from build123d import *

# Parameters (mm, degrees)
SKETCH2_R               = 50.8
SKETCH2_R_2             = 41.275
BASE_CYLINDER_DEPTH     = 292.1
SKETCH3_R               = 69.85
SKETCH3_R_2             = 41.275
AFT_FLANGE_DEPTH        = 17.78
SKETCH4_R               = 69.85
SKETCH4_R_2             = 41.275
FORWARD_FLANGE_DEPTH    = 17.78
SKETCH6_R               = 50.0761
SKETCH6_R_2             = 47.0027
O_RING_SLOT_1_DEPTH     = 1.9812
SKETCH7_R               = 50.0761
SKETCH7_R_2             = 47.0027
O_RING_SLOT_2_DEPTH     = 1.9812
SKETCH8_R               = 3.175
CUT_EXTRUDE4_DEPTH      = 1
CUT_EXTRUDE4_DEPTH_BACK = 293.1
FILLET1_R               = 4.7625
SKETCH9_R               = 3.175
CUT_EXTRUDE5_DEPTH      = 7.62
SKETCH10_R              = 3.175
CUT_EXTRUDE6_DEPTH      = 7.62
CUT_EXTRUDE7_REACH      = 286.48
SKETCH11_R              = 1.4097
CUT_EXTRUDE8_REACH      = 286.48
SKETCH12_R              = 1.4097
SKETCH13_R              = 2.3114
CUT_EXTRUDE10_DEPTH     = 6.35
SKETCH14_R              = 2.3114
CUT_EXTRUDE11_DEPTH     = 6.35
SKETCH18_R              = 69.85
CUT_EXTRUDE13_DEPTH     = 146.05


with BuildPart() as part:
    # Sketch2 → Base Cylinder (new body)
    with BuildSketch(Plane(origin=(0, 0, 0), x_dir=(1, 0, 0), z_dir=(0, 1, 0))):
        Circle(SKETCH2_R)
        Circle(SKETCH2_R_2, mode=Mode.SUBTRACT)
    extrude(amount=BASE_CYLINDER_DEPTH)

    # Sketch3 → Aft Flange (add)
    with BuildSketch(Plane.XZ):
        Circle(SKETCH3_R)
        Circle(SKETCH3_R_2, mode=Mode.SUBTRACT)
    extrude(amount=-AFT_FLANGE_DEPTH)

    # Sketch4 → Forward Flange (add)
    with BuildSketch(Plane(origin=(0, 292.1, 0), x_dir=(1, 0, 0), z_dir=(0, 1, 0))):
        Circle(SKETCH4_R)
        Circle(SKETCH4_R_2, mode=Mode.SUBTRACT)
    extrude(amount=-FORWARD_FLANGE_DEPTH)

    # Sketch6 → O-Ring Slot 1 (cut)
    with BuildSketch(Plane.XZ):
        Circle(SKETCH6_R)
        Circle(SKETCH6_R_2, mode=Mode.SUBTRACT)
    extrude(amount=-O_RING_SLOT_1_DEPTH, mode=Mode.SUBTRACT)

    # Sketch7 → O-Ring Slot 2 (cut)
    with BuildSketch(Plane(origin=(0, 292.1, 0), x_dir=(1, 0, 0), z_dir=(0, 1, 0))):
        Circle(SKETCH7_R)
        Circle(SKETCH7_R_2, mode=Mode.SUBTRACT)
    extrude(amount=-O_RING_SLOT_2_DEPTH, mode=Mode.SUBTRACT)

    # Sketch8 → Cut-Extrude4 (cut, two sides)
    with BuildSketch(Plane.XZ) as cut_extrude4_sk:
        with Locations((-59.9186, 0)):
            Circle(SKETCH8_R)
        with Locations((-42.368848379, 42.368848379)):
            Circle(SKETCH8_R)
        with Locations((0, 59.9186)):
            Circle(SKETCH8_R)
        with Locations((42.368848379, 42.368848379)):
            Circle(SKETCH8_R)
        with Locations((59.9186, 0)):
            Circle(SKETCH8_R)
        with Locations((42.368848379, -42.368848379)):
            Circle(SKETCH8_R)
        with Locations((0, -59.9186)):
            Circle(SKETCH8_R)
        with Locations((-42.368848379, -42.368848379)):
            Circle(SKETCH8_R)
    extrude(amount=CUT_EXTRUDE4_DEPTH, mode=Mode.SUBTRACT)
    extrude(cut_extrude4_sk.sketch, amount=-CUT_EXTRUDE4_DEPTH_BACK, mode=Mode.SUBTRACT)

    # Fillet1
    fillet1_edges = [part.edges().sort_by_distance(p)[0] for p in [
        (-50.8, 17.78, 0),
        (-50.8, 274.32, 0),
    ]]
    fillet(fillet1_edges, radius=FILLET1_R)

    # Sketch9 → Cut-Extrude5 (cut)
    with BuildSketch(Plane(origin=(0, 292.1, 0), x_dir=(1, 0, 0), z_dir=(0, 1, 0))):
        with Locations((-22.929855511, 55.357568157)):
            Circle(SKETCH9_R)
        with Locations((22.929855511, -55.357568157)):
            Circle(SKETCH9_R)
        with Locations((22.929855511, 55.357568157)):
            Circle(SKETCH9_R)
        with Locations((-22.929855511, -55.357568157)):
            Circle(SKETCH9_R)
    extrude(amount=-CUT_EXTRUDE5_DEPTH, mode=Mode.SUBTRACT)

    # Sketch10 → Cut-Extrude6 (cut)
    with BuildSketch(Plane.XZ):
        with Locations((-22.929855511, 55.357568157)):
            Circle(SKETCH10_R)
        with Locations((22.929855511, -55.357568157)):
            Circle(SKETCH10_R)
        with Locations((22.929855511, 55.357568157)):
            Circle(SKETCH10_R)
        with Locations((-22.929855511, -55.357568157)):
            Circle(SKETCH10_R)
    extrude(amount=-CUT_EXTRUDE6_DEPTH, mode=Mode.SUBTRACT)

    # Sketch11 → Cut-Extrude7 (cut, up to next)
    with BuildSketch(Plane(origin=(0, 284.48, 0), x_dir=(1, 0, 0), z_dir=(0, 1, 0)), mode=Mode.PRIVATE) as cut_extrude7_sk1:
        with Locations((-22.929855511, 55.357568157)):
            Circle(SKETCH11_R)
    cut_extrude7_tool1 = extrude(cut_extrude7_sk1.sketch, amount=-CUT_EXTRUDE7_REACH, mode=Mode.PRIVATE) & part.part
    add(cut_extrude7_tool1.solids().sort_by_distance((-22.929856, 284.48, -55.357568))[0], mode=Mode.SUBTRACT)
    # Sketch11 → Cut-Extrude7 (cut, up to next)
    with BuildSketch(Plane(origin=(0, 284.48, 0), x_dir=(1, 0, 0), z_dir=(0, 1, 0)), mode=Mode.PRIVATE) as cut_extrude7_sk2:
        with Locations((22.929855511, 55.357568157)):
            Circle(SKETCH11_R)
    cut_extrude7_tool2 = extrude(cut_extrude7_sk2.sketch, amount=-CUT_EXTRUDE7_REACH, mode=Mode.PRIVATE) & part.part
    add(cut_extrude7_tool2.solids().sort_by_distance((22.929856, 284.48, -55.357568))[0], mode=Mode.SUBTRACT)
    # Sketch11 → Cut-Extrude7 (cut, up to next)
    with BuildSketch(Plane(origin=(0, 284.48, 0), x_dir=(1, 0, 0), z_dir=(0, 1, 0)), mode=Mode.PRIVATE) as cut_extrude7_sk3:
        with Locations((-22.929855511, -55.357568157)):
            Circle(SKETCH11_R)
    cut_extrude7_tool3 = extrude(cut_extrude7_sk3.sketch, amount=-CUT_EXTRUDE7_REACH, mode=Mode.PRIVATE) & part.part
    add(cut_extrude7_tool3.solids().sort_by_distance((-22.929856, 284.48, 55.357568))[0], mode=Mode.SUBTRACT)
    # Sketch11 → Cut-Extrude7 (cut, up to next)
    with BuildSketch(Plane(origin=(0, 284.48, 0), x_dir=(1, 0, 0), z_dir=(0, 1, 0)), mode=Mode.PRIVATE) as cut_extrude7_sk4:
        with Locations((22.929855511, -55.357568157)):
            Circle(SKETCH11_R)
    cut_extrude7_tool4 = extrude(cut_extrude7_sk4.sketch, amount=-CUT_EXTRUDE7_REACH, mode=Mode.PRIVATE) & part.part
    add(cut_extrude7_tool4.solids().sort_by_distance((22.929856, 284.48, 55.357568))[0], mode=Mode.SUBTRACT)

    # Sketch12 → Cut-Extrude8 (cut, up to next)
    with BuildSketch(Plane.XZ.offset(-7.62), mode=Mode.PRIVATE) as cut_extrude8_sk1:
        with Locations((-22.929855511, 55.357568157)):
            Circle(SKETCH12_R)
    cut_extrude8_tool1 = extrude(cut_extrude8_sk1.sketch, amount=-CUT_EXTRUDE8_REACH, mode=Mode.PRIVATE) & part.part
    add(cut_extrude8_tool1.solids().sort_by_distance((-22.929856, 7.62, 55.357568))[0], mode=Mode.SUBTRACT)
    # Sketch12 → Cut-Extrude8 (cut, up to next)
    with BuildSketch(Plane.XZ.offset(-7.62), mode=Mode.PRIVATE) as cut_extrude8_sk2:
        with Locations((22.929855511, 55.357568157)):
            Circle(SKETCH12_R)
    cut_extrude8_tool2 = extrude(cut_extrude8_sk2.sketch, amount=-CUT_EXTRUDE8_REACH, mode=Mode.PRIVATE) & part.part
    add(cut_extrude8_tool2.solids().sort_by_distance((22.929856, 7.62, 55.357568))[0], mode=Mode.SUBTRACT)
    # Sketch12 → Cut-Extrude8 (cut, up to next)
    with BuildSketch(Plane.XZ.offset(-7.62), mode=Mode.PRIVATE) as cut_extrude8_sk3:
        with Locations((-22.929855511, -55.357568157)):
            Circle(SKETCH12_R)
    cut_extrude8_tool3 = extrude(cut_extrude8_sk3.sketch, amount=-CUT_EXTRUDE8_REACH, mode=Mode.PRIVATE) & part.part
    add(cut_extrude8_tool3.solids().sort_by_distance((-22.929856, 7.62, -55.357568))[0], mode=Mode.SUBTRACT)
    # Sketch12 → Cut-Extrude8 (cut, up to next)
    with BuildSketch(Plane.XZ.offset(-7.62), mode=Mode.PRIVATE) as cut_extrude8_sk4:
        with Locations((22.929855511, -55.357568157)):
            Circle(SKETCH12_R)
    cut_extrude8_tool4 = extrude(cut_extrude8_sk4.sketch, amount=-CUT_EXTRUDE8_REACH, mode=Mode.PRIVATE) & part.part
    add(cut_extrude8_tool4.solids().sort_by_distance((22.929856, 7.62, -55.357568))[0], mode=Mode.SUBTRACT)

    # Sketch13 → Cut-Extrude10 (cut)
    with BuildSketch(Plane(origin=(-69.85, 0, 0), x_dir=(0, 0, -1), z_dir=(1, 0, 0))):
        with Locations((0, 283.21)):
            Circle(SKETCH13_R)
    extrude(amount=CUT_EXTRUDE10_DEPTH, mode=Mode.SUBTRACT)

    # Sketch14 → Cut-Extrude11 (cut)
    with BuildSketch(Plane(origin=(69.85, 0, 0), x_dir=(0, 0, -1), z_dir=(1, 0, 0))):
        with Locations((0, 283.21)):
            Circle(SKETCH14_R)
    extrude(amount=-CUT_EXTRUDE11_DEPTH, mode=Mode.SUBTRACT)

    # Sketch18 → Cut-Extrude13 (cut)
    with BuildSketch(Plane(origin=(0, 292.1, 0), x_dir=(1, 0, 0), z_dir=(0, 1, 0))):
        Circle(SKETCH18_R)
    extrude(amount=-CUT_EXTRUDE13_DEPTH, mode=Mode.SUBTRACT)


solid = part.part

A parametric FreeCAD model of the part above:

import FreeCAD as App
import Part
import Sketcher
from FreeCAD import Vector
Q = App.Units.Quantity


def edges_at(feature, points):
    """Names of the edges that pass closest to the given points."""
    edges = feature.Shape.Edges
    near = lambda p: min(range(len(edges)), key=lambda i: edges[i].distToShape(Part.Vertex(*p))[0])
    return sorted({f"Edge{near(p) + 1}" for p in points})

doc = App.newDocument("Part")
body = doc.addObject("PartDesign::Body", "Body")

# Sketch on XZ plane
sketch1 = body.newObject("Sketcher::SketchObject", "Sketch")
sketch1.AttachmentSupport = (doc.getObject("XZ_Plane"), [""])
sketch1.MapMode = "FlatFace"
sketch1.addGeometry([
    Part.Circle(Vector(0, 0, 0), Vector(0, 0, 1), 50.8),
    Part.Circle(Vector(0, 0, 0), Vector(0, 0, 1), 41.275),
], False)
sketch1.addConstraint([
    Sketcher.Constraint("Coincident", 0, 3, -1, 1),
    Sketcher.Constraint("Coincident", 1, 3, -1, 1),
    Sketcher.Constraint("Diameter", 0, Q("4 in")),
    Sketcher.Constraint("Diameter", 1, Q("3.25 in")),
])
pad1 = body.newObject("PartDesign::Pad", "Pad")
pad1.Profile = sketch1
pad1.Length = Q("11.5 in")
pad1.Reversed = True

# Sketch on XZ plane
sketch2 = body.newObject("Sketcher::SketchObject", "Sketch001")
sketch2.AttachmentSupport = (doc.getObject("XZ_Plane"), [""])
sketch2.MapMode = "FlatFace"
sketch2.addGeometry([
    Part.Circle(Vector(0, 0, 0), Vector(0, 0, 1), 69.85),
    Part.Circle(Vector(0, 0, 0), Vector(0, 0, 1), 41.275),
], False)
sketch2.addConstraint([
    Sketcher.Constraint("Coincident", 0, 3, -1, 1),
    Sketcher.Constraint("Coincident", 1, 3, -1, 1),
    Sketcher.Constraint("Diameter", 0, Q("5.5 in")),
    Sketcher.Constraint("Diameter", 1, Q("3.25 in")),
])
pad2 = body.newObject("PartDesign::Pad", "Pad001")
pad2.Profile = sketch2
pad2.Length = Q("0.7 in")
pad2.Reversed = True

# Sketch on XZ plane
sketch3 = body.newObject("Sketcher::SketchObject", "Sketch002")
sketch3.AttachmentSupport = (doc.getObject("XZ_Plane"), [""])
sketch3.MapMode = "FlatFace"
sketch3.AttachmentOffset = App.Placement(Vector(0, 0, -11.5 * 25.4), App.Rotation())
sketch3.addGeometry([
    Part.Circle(Vector(0, 0, 0), Vector(0, 0, 1), 69.85),
    Part.Circle(Vector(0, 0, 0), Vector(0, 0, 1), 41.275),
], False)
sketch3.addConstraint([
    Sketcher.Constraint("Coincident", 0, 3, -1, 1),
    Sketcher.Constraint("Coincident", 1, 3, -1, 1),
    Sketcher.Constraint("Diameter", 0, Q("5.5 in")),
    Sketcher.Constraint("Diameter", 1, Q("3.25 in")),
])
pad3 = body.newObject("PartDesign::Pad", "Pad002")
pad3.Profile = sketch3
pad3.Length = Q("0.7 in")

# Sketch on XZ plane
sketch4 = body.newObject("Sketcher::SketchObject", "Sketch003")
sketch4.AttachmentSupport = (doc.getObject("XZ_Plane"), [""])
sketch4.MapMode = "FlatFace"
sketch4.addGeometry([
    Part.Circle(Vector(0, 0, 0), Vector(0, 0, 1), 50.0761),
    Part.Circle(Vector(0, 0, 0), Vector(0, 0, 1), 47.0027),
], False)
sketch4.addConstraint([
    Sketcher.Constraint("Coincident", 0, 3, -1, 1),
    Sketcher.Constraint("Coincident", 1, 3, -1, 1),
    Sketcher.Constraint("Diameter", 0, Q("3.943 in")),
    Sketcher.Constraint("Diameter", 1, Q("3.701 in")),
])
pocket1 = body.newObject("PartDesign::Pocket", "Pocket")
pocket1.Profile = sketch4
pocket1.Length = Q("0.078 in")

# Sketch on XZ plane
sketch5 = body.newObject("Sketcher::SketchObject", "Sketch004")
sketch5.AttachmentSupport = (doc.getObject("XZ_Plane"), [""])
sketch5.MapMode = "FlatFace"
sketch5.AttachmentOffset = App.Placement(Vector(0, 0, -11.5 * 25.4), App.Rotation())
sketch5.addGeometry([
    Part.Circle(Vector(0, 0, 0), Vector(0, 0, 1), 50.0761),
    Part.Circle(Vector(0, 0, 0), Vector(0, 0, 1), 47.0027),
], False)
sketch5.addConstraint([
    Sketcher.Constraint("Coincident", 0, 3, -1, 1),
    Sketcher.Constraint("Coincident", 1, 3, -1, 1),
    Sketcher.Constraint("Diameter", 0, Q("3.943 in")),
    Sketcher.Constraint("Diameter", 1, Q("3.701 in")),
])
pocket2 = body.newObject("PartDesign::Pocket", "Pocket001")
pocket2.Profile = sketch5
pocket2.Length = Q("0.078 in")
pocket2.Reversed = True

# Sketch on XZ plane
sketch6 = body.newObject("Sketcher::SketchObject", "Sketch005")
sketch6.AttachmentSupport = (doc.getObject("XZ_Plane"), [""])
sketch6.MapMode = "FlatFace"
sketch6.addGeometry([
    Part.Circle(Vector(-59.9186, 0, 0), Vector(0, 0, 1), 3.175),  # 0
    Part.Circle(Vector(-42.368848, 42.368848, 0), Vector(0, 0, 1), 3.175),  # 1
    Part.Circle(Vector(0, 59.9186, 0), Vector(0, 0, 1), 3.175),  # 2
    Part.Circle(Vector(42.368848, 42.368848, 0), Vector(0, 0, 1), 3.175),  # 3
    Part.Circle(Vector(59.9186, 0, 0), Vector(0, 0, 1), 3.175),  # 4
    Part.Circle(Vector(42.368848, -42.368848, 0), Vector(0, 0, 1), 3.175),  # 5
    Part.Circle(Vector(0, -59.9186, 0), Vector(0, 0, 1), 3.175),  # 6
    Part.Circle(Vector(-42.368848, -42.368848, 0), Vector(0, 0, 1), 3.175),  # 7
], False)
sketch6.addConstraint([
    Sketcher.Constraint("Equal", 0, 1),
    Sketcher.Constraint("Equal", 1, 2),
    Sketcher.Constraint("Equal", 2, 3),
    Sketcher.Constraint("Equal", 3, 4),
    Sketcher.Constraint("Equal", 4, 5),
    Sketcher.Constraint("Equal", 5, 6),
    Sketcher.Constraint("Equal", 6, 7),
    Sketcher.Constraint("Symmetric", 0, 3, 4, 3, -1, 1),
    Sketcher.Constraint("Symmetric", 1, 3, 5, 3, -1, 1),
    Sketcher.Constraint("Symmetric", 2, 3, 6, 3, -1, 1),
    Sketcher.Constraint("Symmetric", 3, 3, 7, 3, -1, 1),
    Sketcher.Constraint("Symmetric", 1, 3, 3, 3, -2),
    Sketcher.Constraint("PointOnObject", 0, 3, -1),
    Sketcher.Constraint("PointOnObject", 2, 3, -2),
    Sketcher.Constraint("Diameter", 0, Q("0.25 in")),
    Sketcher.Constraint("DistanceX", 0, 3, -1, 1, Q("2.359 in")),
    Sketcher.Constraint("DistanceY", -1, 1, 2, 3, Q("2.359 in")),
    Sketcher.Constraint("DistanceX", 1, 3, -1, 1, 42.368848),
    Sketcher.Constraint("DistanceY", -1, 1, 1, 3, 42.368848),
])
pocket3 = body.newObject("PartDesign::Pocket", "Pocket002")
pocket3.Profile = sketch6
pocket3.Type = "ThroughAll"
pocket3.Midplane = True
doc.recompute()

fillet = body.newObject("PartDesign::Fillet", "Fillet")
fillet.Base = (pocket3, edges_at(pocket3, [(-50.8, 17.78, 0), (-50.8, 274.32, 0)]))
fillet.Radius = Q("0.1875 in")

# Sketch on XZ plane
sketch7 = body.newObject("Sketcher::SketchObject", "Sketch006")
sketch7.AttachmentSupport = (doc.getObject("XZ_Plane"), [""])
sketch7.MapMode = "FlatFace"
sketch7.AttachmentOffset = App.Placement(Vector(0, 0, -11.5 * 25.4), App.Rotation())
sketch7.addGeometry([
    Part.Circle(Vector(-22.929856, -55.357568, 0), Vector(0, 0, 1), 3.175),
    Part.Circle(Vector(22.929856, 55.357568, 0), Vector(0, 0, 1), 3.175),
    Part.Circle(Vector(22.929856, -55.357568, 0), Vector(0, 0, 1), 3.175),
    Part.Circle(Vector(-22.929856, 55.357568, 0), Vector(0, 0, 1), 3.175),
], False)
sketch7.addConstraint([
    Sketcher.Constraint("Equal", 0, 1),
    Sketcher.Constraint("Equal", 1, 2),
    Sketcher.Constraint("Equal", 2, 3),
    Sketcher.Constraint("Symmetric", 0, 3, 1, 3, -1, 1),
    Sketcher.Constraint("Symmetric", 2, 3, 3, 3, -1, 1),
    Sketcher.Constraint("Symmetric", 0, 3, 2, 3, -2),
    Sketcher.Constraint("Diameter", 0, Q("0.25 in")),
    Sketcher.Constraint("DistanceY", 0, 3, -1, 1, 55.357568),
    Sketcher.Constraint("DistanceX", 0, 3, 1, 3, 45.859711),
])
pocket4 = body.newObject("PartDesign::Pocket", "Pocket003")
pocket4.Profile = sketch7
pocket4.Length = Q("0.3 in")
pocket4.Reversed = True

# Sketch on XZ plane
sketch8 = body.newObject("Sketcher::SketchObject", "Sketch007")
sketch8.AttachmentSupport = (doc.getObject("XZ_Plane"), [""])
sketch8.MapMode = "FlatFace"
sketch8.addGeometry([
    Part.Circle(Vector(-22.929856, 55.357568, 0), Vector(0, 0, 1), 3.175),
    Part.Circle(Vector(22.929856, -55.357568, 0), Vector(0, 0, 1), 3.175),
    Part.Circle(Vector(22.929856, 55.357568, 0), Vector(0, 0, 1), 3.175),
    Part.Circle(Vector(-22.929856, -55.357568, 0), Vector(0, 0, 1), 3.175),
], False)
sketch8.addConstraint([
    Sketcher.Constraint("Equal", 0, 1),
    Sketcher.Constraint("Equal", 1, 2),
    Sketcher.Constraint("Equal", 2, 3),
    Sketcher.Constraint("Symmetric", 0, 3, 1, 3, -1, 1),
    Sketcher.Constraint("Symmetric", 2, 3, 3, 3, -1, 1),
    Sketcher.Constraint("Symmetric", 0, 3, 2, 3, -2),
    Sketcher.Constraint("Diameter", 0, Q("0.25 in")),
    Sketcher.Constraint("DistanceY", -1, 1, 0, 3, 55.357568),
    Sketcher.Constraint("DistanceX", 0, 3, 1, 3, 45.859711),
])
pocket5 = body.newObject("PartDesign::Pocket", "Pocket004")
pocket5.Profile = sketch8
pocket5.Length = Q("0.3 in")

# Sketch on XZ plane
sketch9 = body.newObject("Sketcher::SketchObject", "Sketch008")
sketch9.AttachmentSupport = (doc.getObject("XZ_Plane"), [""])
sketch9.MapMode = "FlatFace"
sketch9.AttachmentOffset = App.Placement(Vector(0, 0, -11.2 * 25.4), App.Rotation())
sketch9.addGeometry(Part.Circle(Vector(-22.929856, -55.357568, 0), Vector(0, 0, 1), 1.4097), False)
sketch9.addConstraint([
    Sketcher.Constraint("Diameter", 0, Q("0.111 in")),
    Sketcher.Constraint("DistanceY", 0, 3, -1, 1, 55.357568),
    Sketcher.Constraint("DistanceX", 0, 3, -1, 1, 22.929856),
])
pocket6 = body.newObject("PartDesign::Pocket", "Pocket005")
pocket6.Profile = sketch9
pocket6.Type = "UpToFirst"
pocket6.Reversed = True

# Sketch on XZ plane
sketch10 = body.newObject("Sketcher::SketchObject", "Sketch009")
sketch10.AttachmentSupport = (doc.getObject("XZ_Plane"), [""])
sketch10.MapMode = "FlatFace"
sketch10.AttachmentOffset = App.Placement(Vector(0, 0, -11.2 * 25.4), App.Rotation())
sketch10.addGeometry(Part.Circle(Vector(22.929856, -55.357568, 0), Vector(0, 0, 1), 1.4097), False)
sketch10.addConstraint([
    Sketcher.Constraint("Diameter", 0, Q("0.111 in")),
    Sketcher.Constraint("DistanceY", 0, 3, -1, 1, 55.357568),
    Sketcher.Constraint("DistanceX", -1, 1, 0, 3, 22.929856),
])
pocket7 = body.newObject("PartDesign::Pocket", "Pocket006")
pocket7.Profile = sketch10
pocket7.Type = "UpToFirst"
pocket7.Reversed = True

# Sketch on XZ plane
sketch11 = body.newObject("Sketcher::SketchObject", "Sketch010")
sketch11.AttachmentSupport = (doc.getObject("XZ_Plane"), [""])
sketch11.MapMode = "FlatFace"
sketch11.AttachmentOffset = App.Placement(Vector(0, 0, -11.2 * 25.4), App.Rotation())
sketch11.addGeometry(Part.Circle(Vector(-22.929856, 55.357568, 0), Vector(0, 0, 1), 1.4097), False)
sketch11.addConstraint([
    Sketcher.Constraint("Diameter", 0, Q("0.111 in")),
    Sketcher.Constraint("DistanceY", -1, 1, 0, 3, 55.357568),
    Sketcher.Constraint("DistanceX", 0, 3, -1, 1, 22.929856),
])
pocket8 = body.newObject("PartDesign::Pocket", "Pocket007")
pocket8.Profile = sketch11
pocket8.Type = "UpToFirst"
pocket8.Reversed = True

# Sketch on XZ plane
sketch12 = body.newObject("Sketcher::SketchObject", "Sketch011")
sketch12.AttachmentSupport = (doc.getObject("XZ_Plane"), [""])
sketch12.MapMode = "FlatFace"
sketch12.AttachmentOffset = App.Placement(Vector(0, 0, -11.2 * 25.4), App.Rotation())
sketch12.addGeometry(Part.Circle(Vector(22.929856, 55.357568, 0), Vector(0, 0, 1), 1.4097), False)
sketch12.addConstraint([
    Sketcher.Constraint("Diameter", 0, Q("0.111 in")),
    Sketcher.Constraint("DistanceY", -1, 1, 0, 3, 55.357568),
    Sketcher.Constraint("DistanceX", -1, 1, 0, 3, 22.929856),
])
pocket9 = body.newObject("PartDesign::Pocket", "Pocket008")
pocket9.Profile = sketch12
pocket9.Type = "UpToFirst"
pocket9.Reversed = True

# Sketch on XZ plane
sketch13 = body.newObject("Sketcher::SketchObject", "Sketch012")
sketch13.AttachmentSupport = (doc.getObject("XZ_Plane"), [""])
sketch13.MapMode = "FlatFace"
sketch13.AttachmentOffset = App.Placement(Vector(0, 0, -0.3 * 25.4), App.Rotation())
sketch13.addGeometry(Part.Circle(Vector(-22.929856, 55.357568, 0), Vector(0, 0, 1), 1.4097), False)
sketch13.addConstraint([
    Sketcher.Constraint("Diameter", 0, Q("0.111 in")),
    Sketcher.Constraint("DistanceY", -1, 1, 0, 3, 55.357568),
    Sketcher.Constraint("DistanceX", 0, 3, -1, 1, 22.929856),
])
pocket10 = body.newObject("PartDesign::Pocket", "Pocket009")
pocket10.Profile = sketch13
pocket10.Type = "UpToFirst"

# Sketch on XZ plane
sketch14 = body.newObject("Sketcher::SketchObject", "Sketch013")
sketch14.AttachmentSupport = (doc.getObject("XZ_Plane"), [""])
sketch14.MapMode = "FlatFace"
sketch14.AttachmentOffset = App.Placement(Vector(0, 0, -0.3 * 25.4), App.Rotation())
sketch14.addGeometry(Part.Circle(Vector(22.929856, 55.357568, 0), Vector(0, 0, 1), 1.4097), False)
sketch14.addConstraint([
    Sketcher.Constraint("Diameter", 0, Q("0.111 in")),
    Sketcher.Constraint("DistanceY", -1, 1, 0, 3, 55.357568),
    Sketcher.Constraint("DistanceX", -1, 1, 0, 3, 22.929856),
])
pocket11 = body.newObject("PartDesign::Pocket", "Pocket010")
pocket11.Profile = sketch14
pocket11.Type = "UpToFirst"

# Sketch on XZ plane
sketch15 = body.newObject("Sketcher::SketchObject", "Sketch014")
sketch15.AttachmentSupport = (doc.getObject("XZ_Plane"), [""])
sketch15.MapMode = "FlatFace"
sketch15.AttachmentOffset = App.Placement(Vector(0, 0, -0.3 * 25.4), App.Rotation())
sketch15.addGeometry(Part.Circle(Vector(-22.929856, -55.357568, 0), Vector(0, 0, 1), 1.4097), False)
sketch15.addConstraint([
    Sketcher.Constraint("Diameter", 0, Q("0.111 in")),
    Sketcher.Constraint("DistanceY", 0, 3, -1, 1, 55.357568),
    Sketcher.Constraint("DistanceX", 0, 3, -1, 1, 22.929856),
])
pocket12 = body.newObject("PartDesign::Pocket", "Pocket011")
pocket12.Profile = sketch15
pocket12.Type = "UpToFirst"

# Sketch on XZ plane
sketch16 = body.newObject("Sketcher::SketchObject", "Sketch015")
sketch16.AttachmentSupport = (doc.getObject("XZ_Plane"), [""])
sketch16.MapMode = "FlatFace"
sketch16.AttachmentOffset = App.Placement(Vector(0, 0, -0.3 * 25.4), App.Rotation())
sketch16.addGeometry(Part.Circle(Vector(22.929856, -55.357568, 0), Vector(0, 0, 1), 1.4097), False)
sketch16.addConstraint([
    Sketcher.Constraint("Diameter", 0, Q("0.111 in")),
    Sketcher.Constraint("DistanceY", 0, 3, -1, 1, 55.357568),
    Sketcher.Constraint("DistanceX", -1, 1, 0, 3, 22.929856),
])
pocket13 = body.newObject("PartDesign::Pocket", "Pocket012")
pocket13.Profile = sketch16
pocket13.Type = "UpToFirst"

# Sketch on YZ plane
sketch17 = body.newObject("Sketcher::SketchObject", "Sketch016")
sketch17.AttachmentSupport = (doc.getObject("YZ_Plane"), [""])
sketch17.MapMode = "FlatFace"
sketch17.AttachmentOffset = App.Placement(Vector(0, 0, -2.75 * 25.4), App.Rotation())
sketch17.addGeometry(Part.Circle(Vector(283.21, 0, 0), Vector(0, 0, 1), 2.3114), False)
sketch17.addConstraint([
    Sketcher.Constraint("PointOnObject", 0, 3, -1),
    Sketcher.Constraint("Diameter", 0, Q("0.182 in")),
    Sketcher.Constraint("DistanceX", -1, 1, 0, 3, Q("11.15 in")),
])
pocket14 = body.newObject("PartDesign::Pocket", "Pocket013")
pocket14.Profile = sketch17
pocket14.Length = Q("0.25 in")
pocket14.Reversed = True

# Sketch on YZ plane
sketch18 = body.newObject("Sketcher::SketchObject", "Sketch017")
sketch18.AttachmentSupport = (doc.getObject("YZ_Plane"), [""])
sketch18.MapMode = "FlatFace"
sketch18.AttachmentOffset = App.Placement(Vector(0, 0, 2.75 * 25.4), App.Rotation())
sketch18.addGeometry(Part.Circle(Vector(283.21, 0, 0), Vector(0, 0, 1), 2.3114), False)
sketch18.addConstraint([
    Sketcher.Constraint("PointOnObject", 0, 3, -1),
    Sketcher.Constraint("Diameter", 0, Q("0.182 in")),
    Sketcher.Constraint("DistanceX", -1, 1, 0, 3, Q("11.15 in")),
])
pocket15 = body.newObject("PartDesign::Pocket", "Pocket014")
pocket15.Profile = sketch18
pocket15.Length = Q("0.25 in")

# Sketch on XZ plane
sketch19 = body.newObject("Sketcher::SketchObject", "Sketch018")
sketch19.AttachmentSupport = (doc.getObject("XZ_Plane"), [""])
sketch19.MapMode = "FlatFace"
sketch19.AttachmentOffset = App.Placement(Vector(0, 0, -11.5 * 25.4), App.Rotation())
sketch19.addGeometry(Part.Circle(Vector(0, 0, 0), Vector(0, 0, 1), 69.85), False)
sketch19.addConstraint([
    Sketcher.Constraint("Coincident", 0, 3, -1, 1),
    Sketcher.Constraint("Diameter", 0, Q("5.5 in")),
])
pocket16 = body.newObject("PartDesign::Pocket", "Pocket015")
pocket16.Profile = sketch19
pocket16.Length = Q("5.75 in")
pocket16.Reversed = True

doc.recompute()
